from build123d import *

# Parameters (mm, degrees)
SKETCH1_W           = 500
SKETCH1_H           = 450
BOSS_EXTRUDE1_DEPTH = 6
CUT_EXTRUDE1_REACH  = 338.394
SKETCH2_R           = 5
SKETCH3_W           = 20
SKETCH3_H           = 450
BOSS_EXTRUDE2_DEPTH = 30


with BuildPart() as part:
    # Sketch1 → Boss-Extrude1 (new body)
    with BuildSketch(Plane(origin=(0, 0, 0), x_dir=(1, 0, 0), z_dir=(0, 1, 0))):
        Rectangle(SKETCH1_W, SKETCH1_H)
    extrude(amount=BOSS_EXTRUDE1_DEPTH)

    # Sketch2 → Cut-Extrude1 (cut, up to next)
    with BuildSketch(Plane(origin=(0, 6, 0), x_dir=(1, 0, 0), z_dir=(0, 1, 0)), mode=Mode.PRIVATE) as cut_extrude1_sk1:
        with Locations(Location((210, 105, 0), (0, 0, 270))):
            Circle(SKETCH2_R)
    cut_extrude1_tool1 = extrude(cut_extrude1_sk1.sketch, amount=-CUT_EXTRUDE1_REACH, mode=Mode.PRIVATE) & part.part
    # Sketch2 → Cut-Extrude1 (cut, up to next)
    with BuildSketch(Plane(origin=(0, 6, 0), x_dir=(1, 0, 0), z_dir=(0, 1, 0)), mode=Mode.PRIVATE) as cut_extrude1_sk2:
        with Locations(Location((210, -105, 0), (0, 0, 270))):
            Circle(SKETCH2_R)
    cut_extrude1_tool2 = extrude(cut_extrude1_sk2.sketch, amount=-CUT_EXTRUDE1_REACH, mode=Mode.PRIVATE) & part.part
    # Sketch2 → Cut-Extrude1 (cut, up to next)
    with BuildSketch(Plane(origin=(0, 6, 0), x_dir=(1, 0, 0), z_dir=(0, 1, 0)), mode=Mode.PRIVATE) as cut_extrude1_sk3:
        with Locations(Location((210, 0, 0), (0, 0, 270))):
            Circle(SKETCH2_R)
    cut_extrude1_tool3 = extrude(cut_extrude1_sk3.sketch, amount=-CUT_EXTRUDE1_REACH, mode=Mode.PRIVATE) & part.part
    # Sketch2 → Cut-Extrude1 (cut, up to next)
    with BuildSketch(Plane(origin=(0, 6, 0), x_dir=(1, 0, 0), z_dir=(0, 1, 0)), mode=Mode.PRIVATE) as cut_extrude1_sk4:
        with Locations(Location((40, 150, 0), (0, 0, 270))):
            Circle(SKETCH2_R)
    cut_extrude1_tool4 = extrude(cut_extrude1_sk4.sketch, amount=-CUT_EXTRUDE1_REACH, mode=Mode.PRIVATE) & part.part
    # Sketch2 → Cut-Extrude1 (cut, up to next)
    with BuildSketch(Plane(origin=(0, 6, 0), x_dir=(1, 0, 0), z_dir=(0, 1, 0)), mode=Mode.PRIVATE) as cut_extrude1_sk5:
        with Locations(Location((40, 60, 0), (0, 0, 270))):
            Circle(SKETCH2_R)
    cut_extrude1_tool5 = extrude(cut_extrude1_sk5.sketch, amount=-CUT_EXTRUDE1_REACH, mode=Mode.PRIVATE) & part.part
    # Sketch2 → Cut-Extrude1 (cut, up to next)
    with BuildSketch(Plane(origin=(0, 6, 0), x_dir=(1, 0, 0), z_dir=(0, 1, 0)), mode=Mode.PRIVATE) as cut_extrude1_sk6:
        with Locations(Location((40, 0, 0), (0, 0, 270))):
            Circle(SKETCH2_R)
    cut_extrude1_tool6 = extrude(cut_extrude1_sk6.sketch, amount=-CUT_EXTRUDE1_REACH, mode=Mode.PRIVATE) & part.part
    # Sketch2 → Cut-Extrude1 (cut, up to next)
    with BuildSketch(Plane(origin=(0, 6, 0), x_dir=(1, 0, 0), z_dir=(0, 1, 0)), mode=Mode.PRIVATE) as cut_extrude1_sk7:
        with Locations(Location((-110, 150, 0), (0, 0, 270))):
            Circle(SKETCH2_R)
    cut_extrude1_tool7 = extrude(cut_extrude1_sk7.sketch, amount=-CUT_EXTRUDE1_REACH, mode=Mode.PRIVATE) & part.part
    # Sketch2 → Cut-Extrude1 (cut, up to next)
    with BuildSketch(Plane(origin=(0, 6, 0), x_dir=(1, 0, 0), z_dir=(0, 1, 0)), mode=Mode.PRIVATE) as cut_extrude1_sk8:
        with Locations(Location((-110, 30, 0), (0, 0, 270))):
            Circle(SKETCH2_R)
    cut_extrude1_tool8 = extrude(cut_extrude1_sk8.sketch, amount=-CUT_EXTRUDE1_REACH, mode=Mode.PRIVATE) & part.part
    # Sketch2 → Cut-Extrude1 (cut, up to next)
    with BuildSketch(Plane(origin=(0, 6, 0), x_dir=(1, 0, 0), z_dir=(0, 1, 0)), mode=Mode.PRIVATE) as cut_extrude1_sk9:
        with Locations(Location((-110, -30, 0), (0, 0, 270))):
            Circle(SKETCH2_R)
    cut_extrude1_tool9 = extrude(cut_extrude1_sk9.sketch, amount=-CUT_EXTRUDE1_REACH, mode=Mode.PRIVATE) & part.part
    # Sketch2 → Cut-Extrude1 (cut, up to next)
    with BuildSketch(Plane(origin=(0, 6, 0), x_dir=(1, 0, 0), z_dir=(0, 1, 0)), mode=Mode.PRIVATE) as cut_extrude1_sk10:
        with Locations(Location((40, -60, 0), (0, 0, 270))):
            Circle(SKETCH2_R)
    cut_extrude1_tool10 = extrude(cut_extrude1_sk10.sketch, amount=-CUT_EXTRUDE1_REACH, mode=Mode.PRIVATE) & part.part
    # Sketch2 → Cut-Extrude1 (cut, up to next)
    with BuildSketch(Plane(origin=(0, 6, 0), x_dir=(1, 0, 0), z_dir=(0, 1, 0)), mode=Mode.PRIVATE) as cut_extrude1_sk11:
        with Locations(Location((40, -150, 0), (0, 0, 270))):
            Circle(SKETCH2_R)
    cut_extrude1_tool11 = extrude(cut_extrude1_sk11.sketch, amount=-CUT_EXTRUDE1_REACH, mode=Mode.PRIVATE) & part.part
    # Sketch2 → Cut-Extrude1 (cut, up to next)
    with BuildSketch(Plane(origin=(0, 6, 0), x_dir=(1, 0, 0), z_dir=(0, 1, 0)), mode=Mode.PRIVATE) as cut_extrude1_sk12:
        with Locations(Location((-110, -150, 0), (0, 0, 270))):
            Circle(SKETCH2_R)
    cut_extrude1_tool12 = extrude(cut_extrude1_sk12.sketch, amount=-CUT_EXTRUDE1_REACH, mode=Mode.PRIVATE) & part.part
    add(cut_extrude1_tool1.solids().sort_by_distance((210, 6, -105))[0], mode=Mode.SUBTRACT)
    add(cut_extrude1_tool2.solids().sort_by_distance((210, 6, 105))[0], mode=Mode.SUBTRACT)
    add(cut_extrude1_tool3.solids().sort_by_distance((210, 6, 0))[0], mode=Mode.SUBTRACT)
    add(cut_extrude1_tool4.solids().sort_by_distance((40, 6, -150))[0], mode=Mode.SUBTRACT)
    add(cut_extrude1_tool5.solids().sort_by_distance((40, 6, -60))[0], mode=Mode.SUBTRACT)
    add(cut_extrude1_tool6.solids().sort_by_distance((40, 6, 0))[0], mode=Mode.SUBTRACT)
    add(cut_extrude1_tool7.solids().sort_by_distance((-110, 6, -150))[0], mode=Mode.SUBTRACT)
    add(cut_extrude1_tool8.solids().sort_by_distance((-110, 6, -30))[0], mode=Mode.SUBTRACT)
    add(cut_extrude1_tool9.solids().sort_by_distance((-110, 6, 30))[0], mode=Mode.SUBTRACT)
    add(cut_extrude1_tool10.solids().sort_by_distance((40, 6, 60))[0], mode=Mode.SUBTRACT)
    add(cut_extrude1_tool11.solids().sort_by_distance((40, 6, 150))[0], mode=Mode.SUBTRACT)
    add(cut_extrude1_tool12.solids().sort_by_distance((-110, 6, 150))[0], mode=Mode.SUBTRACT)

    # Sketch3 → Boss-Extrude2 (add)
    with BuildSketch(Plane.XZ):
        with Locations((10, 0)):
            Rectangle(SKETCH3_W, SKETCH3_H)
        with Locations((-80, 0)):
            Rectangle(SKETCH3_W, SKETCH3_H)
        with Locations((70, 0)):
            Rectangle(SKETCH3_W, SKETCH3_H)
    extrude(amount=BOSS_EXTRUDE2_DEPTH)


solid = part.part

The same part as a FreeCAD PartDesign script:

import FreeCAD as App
import Part
import Sketcher

V = App.Vector
Q = App.Units.Quantity


def add_polygon(sketch, points):
    """Adds a closed chain of lines whose ends are joined by coincident constraints."""
    first, n = sketch.GeometryCount, len(points)
    for a, b in zip(points, points[1:] + points[:1]):
        sketch.addGeometry(Part.LineSegment(App.Vector(*a, 0), App.Vector(*b, 0)), False)
    for i in range(n):
        sketch.addConstraint(Sketcher.Constraint("Coincident", first + i, 2, first + (i + 1) % n, 1))

doc = App.newDocument("Part")
body = doc.addObject("PartDesign::Body", "Body")

# Sketch on XZ plane
sketch1 = doc.addObject("Sketcher::SketchObject", "Sketch")
body.addObject(sketch1)
sketch1.AttachmentSupport = (doc.XZ_Plane, [""])
sketch1.MapMode = "FlatFace"
add_polygon(sketch1, [(-250, -225), (-250, 225), (250, 225), (250, -225)])  # lines 0-3
sketch1.addConstraint([
    Sketcher.Constraint("Vertical", 0),
    Sketcher.Constraint("Horizontal", 1),
    Sketcher.Constraint("Vertical", 2),
    Sketcher.Constraint("Horizontal", 3),
    Sketcher.Constraint("Symmetric", 0, 2, 2, 2, -1, 1),
    Sketcher.Constraint("DistanceX", 1, 1, 1, 2, Q("500 mm")),
    Sketcher.Constraint("DistanceY", 0, 1, 0, 2, Q("450 mm")),
])
pad1 = doc.addObject("PartDesign::Pad", "Pad")
body.addObject(pad1)
pad1.Profile = sketch1
pad1.Length = 6
pad1.Reversed = True

# Sketch on XZ plane
sketch2 = doc.addObject("Sketcher::SketchObject", "Sketch001")
body.addObject(sketch2)
sketch2.AttachmentSupport = (doc.XZ_Plane, [""])
sketch2.MapMode = "FlatFace"
sketch2.AttachmentOffset = App.Placement(V(0, 0, -6), App.Rotation())
sketch2.addGeometry(Part.Circle(V(210, -105, 0), V(0, 0, 1), 5), False)
sketch2.addConstraint([
    Sketcher.Constraint("Diameter", 0, Q("10 mm")),
    Sketcher.Constraint("DistanceX", -1, 1, 0, 3, Q("210 mm")),
    Sketcher.Constraint("DistanceY", 0, 3, -1, 1, Q("105 mm")),
])
pocket1 = doc.addObject("PartDesign::Pocket", "Pocket")
body.addObject(pocket1)
pocket1.Profile = sketch2
pocket1.Type = "UpToFirst"
pocket1.Reversed = True

# Sketch on XZ plane
sketch3 = doc.addObject("Sketcher::SketchObject", "Sketch002")
body.addObject(sketch3)
sketch3.AttachmentSupport = (doc.XZ_Plane, [""])
sketch3.MapMode = "FlatFace"
sketch3.AttachmentOffset = App.Placement(V(0, 0, -6), App.Rotation())
sketch3.addGeometry(Part.Circle(V(210, 105, 0), V(0, 0, 1), 5), False)
sketch3.addConstraint([
    Sketcher.Constraint("Diameter", 0, Q("10 mm")),
    Sketcher.Constraint("DistanceX", -1, 1, 0, 3, Q("210 mm")),
    Sketcher.Constraint("DistanceY", -1, 1, 0, 3, Q("105 mm")),
])
pocket2 = doc.addObject("PartDesign::Pocket", "Pocket001")
body.addObject(pocket2)
pocket2.Profile = sketch3
pocket2.Type = "UpToFirst"
pocket2.Reversed = True

# Sketch on XZ plane
sketch4 = doc.addObject("Sketcher::SketchObject", "Sketch003")
body.addObject(sketch4)
sketch4.AttachmentSupport = (doc.XZ_Plane, [""])
sketch4.MapMode = "FlatFace"
sketch4.AttachmentOffset = App.Placement(V(0, 0, -6), App.Rotation())
sketch4.addGeometry(Part.Circle(V(210, 0, 0), V(0, 0, 1), 5), False)
sketch4.addConstraint([
    Sketcher.Constraint("PointOnObject", 0, 3, -1),
    Sketcher.Constraint("Diameter", 0, Q("10 mm")),
    Sketcher.Constraint("DistanceX", -1, 1, 0, 3, Q("210 mm")),
])
pocket3 = doc.addObject("PartDesign::Pocket", "Pocket002")
body.addObject(pocket3)
pocket3.Profile = sketch4
pocket3.Type = "UpToFirst"
pocket3.Reversed = True

# Sketch on XZ plane
sketch5 = doc.addObject("Sketcher::SketchObject", "Sketch004")
body.addObject(sketch5)
sketch5.AttachmentSupport = (doc.XZ_Plane, [""])
sketch5.MapMode = "FlatFace"
sketch5.AttachmentOffset = App.Placement(V(0, 0, -6), App.Rotation())
sketch5.addGeometry(Part.Circle(V(40, -150, 0), V(0, 0, 1), 5), False)
sketch5.addConstraint([
    Sketcher.Constraint("Diameter", 0, Q("10 mm")),
    Sketcher.Constraint("DistanceX", -1, 1, 0, 3, Q("40 mm")),
    Sketcher.Constraint("DistanceY", 0, 3, -1, 1, Q("150 mm")),
])
pocket4 = doc.addObject("PartDesign::Pocket", "Pocket003")
body.addObject(pocket4)
pocket4.Profile = sketch5
pocket4.Type = "UpToFirst"
pocket4.Reversed = True

# Sketch on XZ plane
sketch6 = doc.addObject("Sketcher::SketchObject", "Sketch005")
body.addObject(sketch6)
sketch6.AttachmentSupport = (doc.XZ_Plane, [""])
sketch6.MapMode = "FlatFace"
sketch6.AttachmentOffset = App.Placement(V(0, 0, -6), App.Rotation())
sketch6.addGeometry(Part.Circle(V(40, -60, 0), V(0, 0, 1), 5), False)
sketch6.addConstraint([
    Sketcher.Constraint("Diameter", 0, Q("10 mm")),
    Sketcher.Constraint("DistanceX", -1, 1, 0, 3, Q("40 mm")),
    Sketcher.Constraint("DistanceY", 0, 3, -1, 1, Q("60 mm")),
])
pocket5 = doc.addObject("PartDesign::Pocket", "Pocket004")
body.addObject(pocket5)
pocket5.Profile = sketch6
pocket5.Type = "UpToFirst"
pocket5.Reversed = True

# Sketch on XZ plane
sketch7 = doc.addObject("Sketcher::SketchObject", "Sketch006")
body.addObject(sketch7)
sketch7.AttachmentSupport = (doc.XZ_Plane, [""])
sketch7.MapMode = "FlatFace"
sketch7.AttachmentOffset = App.Placement(V(0, 0, -6), App.Rotation())
sketch7.addGeometry(Part.Circle(V(40, 0, 0), V(0, 0, 1), 5), False)
sketch7.addConstraint([
    Sketcher.Constraint("PointOnObject", 0, 3, -1),
    Sketcher.Constraint("Diameter", 0, Q("10 mm")),
    Sketcher.Constraint("DistanceX", -1, 1, 0, 3, Q("40 mm")),
])
pocket6 = doc.addObject("PartDesign::Pocket", "Pocket005")
body.addObject(pocket6)
pocket6.Profile = sketch7
pocket6.Type = "UpToFirst"
pocket6.Reversed = True

# Sketch on XZ plane
sketch8 = doc.addObject("Sketcher::SketchObject", "Sketch007")
body.addObject(sketch8)
sketch8.AttachmentSupport = (doc.XZ_Plane, [""])
sketch8.MapMode = "FlatFace"
sketch8.AttachmentOffset = App.Placement(V(0, 0, -6), App.Rotation())
sketch8.addGeometry(Part.Circle(V(-110, -150, 0), V(0, 0, 1), 5), False)
sketch8.addConstraint([
    Sketcher.Constraint("Diameter", 0, Q("10 mm")),
    Sketcher.Constraint("DistanceX", 0, 3, -1, 1, Q("110 mm")),
    Sketcher.Constraint("DistanceY", 0, 3, -1, 1, Q("150 mm")),
])
pocket7 = doc.addObject("PartDesign::Pocket", "Pocket006")
body.addObject(pocket7)
pocket7.Profile = sketch8
pocket7.Type = "UpToFirst"
pocket7.Reversed = True

# Sketch on XZ plane
sketch9 = doc.addObject("Sketcher::SketchObject", "Sketch008")
body.addObject(sketch9)
sketch9.AttachmentSupport = (doc.XZ_Plane, [""])
sketch9.MapMode = "FlatFace"
sketch9.AttachmentOffset = App.Placement(V(0, 0, -6), App.Rotation())
sketch9.addGeometry(Part.Circle(V(-110, -30, 0), V(0, 0, 1), 5), False)
sketch9.addConstraint([
    Sketcher.Constraint("Diameter", 0, Q("10 mm")),
    Sketcher.Constraint("DistanceX", 0, 3, -1, 1, Q("110 mm")),
    Sketcher.Constraint("DistanceY", 0, 3, -1, 1, Q("30 mm")),
])
pocket8 = doc.addObject("PartDesign::Pocket", "Pocket007")
body.addObject(pocket8)
pocket8.Profile = sketch9
pocket8.Type = "UpToFirst"
pocket8.Reversed = True

# Sketch on XZ plane
sketch10 = doc.addObject("Sketcher::SketchObject", "Sketch009")
body.addObject(sketch10)
sketch10.AttachmentSupport = (doc.XZ_Plane, [""])
sketch10.MapMode = "FlatFace"
sketch10.AttachmentOffset = App.Placement(V(0, 0, -6), App.Rotation())
sketch10.addGeometry(Part.Circle(V(-110, 30, 0), V(0, 0, 1), 5), False)
sketch10.addConstraint([
    Sketcher.Constraint("Diameter", 0, Q("10 mm")),
    Sketcher.Constraint("DistanceX", 0, 3, -1, 1, Q("110 mm")),
    Sketcher.Constraint("DistanceY", -1, 1, 0, 3, Q("30 mm")),
])
pocket9 = doc.addObject("PartDesign::Pocket", "Pocket008")
body.addObject(pocket9)
pocket9.Profile = sketch10
pocket9.Type = "UpToFirst"
pocket9.Reversed = True

# Sketch on XZ plane
sketch11 = doc.addObject("Sketcher::SketchObject", "Sketch010")
body.addObject(sketch11)
sketch11.AttachmentSupport = (doc.XZ_Plane, [""])
sketch11.MapMode = "FlatFace"
sketch11.AttachmentOffset = App.Placement(V(0, 0, -6), App.Rotation())
sketch11.addGeometry(Part.Circle(V(40, 60, 0), V(0, 0, 1), 5), False)
sketch11.addConstraint([
    Sketcher.Constraint("Diameter", 0, Q("10 mm")),
    Sketcher.Constraint("DistanceX", -1, 1, 0, 3, Q("40 mm")),
    Sketcher.Constraint("DistanceY", -1, 1, 0, 3, Q("60 mm")),
])
pocket10 = doc.addObject("PartDesign::Pocket", "Pocket009")
body.addObject(pocket10)
pocket10.Profile = sketch11
pocket10.Type = "UpToFirst"
pocket10.Reversed = True

# Sketch on XZ plane
sketch12 = doc.addObject("Sketcher::SketchObject", "Sketch011")
body.addObject(sketch12)
sketch12.AttachmentSupport = (doc.XZ_Plane, [""])
sketch12.MapMode = "FlatFace"
sketch12.AttachmentOffset = App.Placement(V(0, 0, -6), App.Rotation())
sketch12.addGeometry(Part.Circle(V(40, 150, 0), V(0, 0, 1), 5), False)
sketch12.addConstraint([
    Sketcher.Constraint("Diameter", 0, Q("10 mm")),
    Sketcher.Constraint("DistanceX", -1, 1, 0, 3, Q("40 mm")),
    Sketcher.Constraint("DistanceY", -1, 1, 0, 3, Q("150 mm")),
])
pocket11 = doc.addObject("PartDesign::Pocket", "Pocket010")
body.addObject(pocket11)
pocket11.Profile = sketch12
pocket11.Type = "UpToFirst"
pocket11.Reversed = True

# Sketch on XZ plane
sketch13 = doc.addObject("Sketcher::SketchObject", "Sketch012")
body.addObject(sketch13)
sketch13.AttachmentSupport = (doc.XZ_Plane, [""])
sketch13.MapMode = "FlatFace"
sketch13.AttachmentOffset = App.Placement(V(0, 0, -6), App.Rotation())
sketch13.addGeometry(Part.Circle(V(-110, 150, 0), V(0, 0, 1), 5), False)
sketch13.addConstraint([
    Sketcher.Constraint("Diameter", 0, Q("10 mm")),
    Sketcher.Constraint("DistanceX", 0, 3, -1, 1, Q("110 mm")),
    Sketcher.Constraint("DistanceY", -1, 1, 0, 3, Q("150 mm")),
])
pocket12 = doc.addObject("PartDesign::Pocket", "Pocket011")
body.addObject(pocket12)
pocket12.Profile = sketch13
pocket12.Type = "UpToFirst"
pocket12.Reversed = True

# Sketch on XZ plane
sketch14 = doc.addObject("Sketcher::SketchObject", "Sketch013")
body.addObject(sketch14)
sketch14.AttachmentSupport = (doc.XZ_Plane, [""])
sketch14.MapMode = "FlatFace"
add_polygon(sketch14, [(0, 225), (0, -225), (20, -225), (20, 225)])  # lines 0-3
add_polygon(sketch14, [(-90, 225), (-90, -225), (-70, -225), (-70, 225)])  # lines 4-7
add_polygon(sketch14, [(60, 225), (60, -225), (80, -225), (80, 225)])  # lines 8-11
sketch14.addConstraint([
    Sketcher.Constraint("Vertical", 0),
    Sketcher.Constraint("Horizontal", 1),
    Sketcher.Constraint("Vertical", 2),
    Sketcher.Constraint("Horizontal", 3),
    Sketcher.Constraint("Vertical", 4),
    Sketcher.Constraint("Horizontal", 5),
    Sketcher.Constraint("Vertical", 6),
    Sketcher.Constraint("Horizontal", 7),
    Sketcher.Constraint("Vertical", 8),
    Sketcher.Constraint("Horizontal", 9),
    Sketcher.Constraint("Vertical", 10),
    Sketcher.Constraint("Horizontal", 11),
    Sketcher.Constraint("Symmetric", 0, 2, 3, 2, -1, 1),
    Sketcher.Constraint("Horizontal", 1, 2, 4, 2),
    Sketcher.Constraint("Horizontal", 3, 2, 6, 2),
    Sketcher.Constraint("Horizontal", 5, 2, 8, 2),
    Sketcher.Constraint("Horizontal", 7, 2, 10, 2),
    Sketcher.Constraint("Equal", 3, 5),
    Sketcher.Constraint("Equal", 7, 9),
    Sketcher.Constraint("DistanceX", 1, 1, 1, 2, Q("20 mm")),
    Sketcher.Constraint("DistanceY", 0, 2, 0, 1, Q("450 mm")),
    Sketcher.Constraint("DistanceX", 4, 2, -1, 1, Q("90 mm")),
    Sketcher.Constraint("DistanceX", -1, 1, 8, 2, Q("60 mm")),
])
pad2 = doc.addObject("PartDesign::Pad", "Pad001")
body.addObject(pad2)
pad2.Profile = sketch14
pad2.Length = 30

doc.recompute()
